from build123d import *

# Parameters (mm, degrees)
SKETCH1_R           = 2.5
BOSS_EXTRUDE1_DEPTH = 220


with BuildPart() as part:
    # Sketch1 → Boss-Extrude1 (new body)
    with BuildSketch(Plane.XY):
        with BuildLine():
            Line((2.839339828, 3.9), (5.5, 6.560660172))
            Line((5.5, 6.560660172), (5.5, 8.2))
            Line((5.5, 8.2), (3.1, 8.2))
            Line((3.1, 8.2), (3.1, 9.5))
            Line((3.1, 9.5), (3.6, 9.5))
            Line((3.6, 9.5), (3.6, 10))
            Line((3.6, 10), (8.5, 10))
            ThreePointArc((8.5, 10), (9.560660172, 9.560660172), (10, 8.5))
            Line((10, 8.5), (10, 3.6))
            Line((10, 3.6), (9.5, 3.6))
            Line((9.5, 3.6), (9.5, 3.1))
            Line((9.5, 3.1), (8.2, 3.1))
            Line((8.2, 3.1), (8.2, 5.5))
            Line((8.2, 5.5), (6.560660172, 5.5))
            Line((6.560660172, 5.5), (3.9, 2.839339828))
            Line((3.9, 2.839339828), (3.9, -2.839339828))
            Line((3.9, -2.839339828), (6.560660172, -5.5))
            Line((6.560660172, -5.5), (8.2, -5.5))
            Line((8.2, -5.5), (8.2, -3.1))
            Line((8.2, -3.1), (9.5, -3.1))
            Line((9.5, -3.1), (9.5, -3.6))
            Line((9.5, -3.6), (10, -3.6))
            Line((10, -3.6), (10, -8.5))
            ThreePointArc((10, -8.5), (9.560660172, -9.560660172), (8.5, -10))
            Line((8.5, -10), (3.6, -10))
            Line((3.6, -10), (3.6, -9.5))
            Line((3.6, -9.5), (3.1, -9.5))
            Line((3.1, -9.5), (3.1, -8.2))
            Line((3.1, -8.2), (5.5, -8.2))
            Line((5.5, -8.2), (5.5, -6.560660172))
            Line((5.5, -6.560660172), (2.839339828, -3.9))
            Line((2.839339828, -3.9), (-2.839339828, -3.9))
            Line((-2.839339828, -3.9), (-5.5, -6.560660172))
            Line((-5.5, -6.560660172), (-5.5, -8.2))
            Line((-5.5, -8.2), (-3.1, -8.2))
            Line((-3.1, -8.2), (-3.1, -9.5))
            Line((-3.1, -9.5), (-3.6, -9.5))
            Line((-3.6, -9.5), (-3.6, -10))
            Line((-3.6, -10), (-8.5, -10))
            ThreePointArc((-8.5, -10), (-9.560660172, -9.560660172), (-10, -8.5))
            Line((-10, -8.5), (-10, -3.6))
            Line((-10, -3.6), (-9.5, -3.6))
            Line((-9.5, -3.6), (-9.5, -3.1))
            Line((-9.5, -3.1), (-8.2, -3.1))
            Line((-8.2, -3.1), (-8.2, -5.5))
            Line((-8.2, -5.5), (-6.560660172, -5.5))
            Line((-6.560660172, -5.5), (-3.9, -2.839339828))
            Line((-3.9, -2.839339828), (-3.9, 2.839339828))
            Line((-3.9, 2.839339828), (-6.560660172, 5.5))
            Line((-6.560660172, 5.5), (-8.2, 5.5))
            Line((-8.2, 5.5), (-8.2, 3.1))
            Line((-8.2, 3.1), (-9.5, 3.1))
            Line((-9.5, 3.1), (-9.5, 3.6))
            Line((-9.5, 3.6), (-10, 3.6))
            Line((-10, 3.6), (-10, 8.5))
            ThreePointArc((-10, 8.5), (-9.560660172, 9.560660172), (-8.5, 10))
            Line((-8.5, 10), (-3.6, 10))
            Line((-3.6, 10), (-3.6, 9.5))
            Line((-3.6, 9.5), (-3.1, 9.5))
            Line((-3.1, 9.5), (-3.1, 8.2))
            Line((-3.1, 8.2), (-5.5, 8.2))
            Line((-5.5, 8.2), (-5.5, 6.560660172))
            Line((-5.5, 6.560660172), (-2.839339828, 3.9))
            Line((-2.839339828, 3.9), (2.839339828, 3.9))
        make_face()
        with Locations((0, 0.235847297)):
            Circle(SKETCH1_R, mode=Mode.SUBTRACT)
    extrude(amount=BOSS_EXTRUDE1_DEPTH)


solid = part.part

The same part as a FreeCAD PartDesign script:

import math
import FreeCAD as App
import Part
import Sketcher
Q = App.Units.Quantity

doc = App.newDocument("Part")
body = doc.addObject("PartDesign::Body", "Body")

# Sketch on XY plane
sketch1 = body.newObject("Sketcher::SketchObject", "Sketch")
sketch1.AttachmentSupport = (doc.getObject("XY_Plane"), [""])
sketch1.MapMode = "FlatFace"
sketch1.addGeometry(Part.LineSegment(App.Vector(5.5, 6.6, 0), App.Vector(2.8, 3.9, 0)), False)
sketch1.addGeometry(Part.LineSegment(App.Vector(2.8, 3.9, 0), App.Vector(-2.8, 3.9, 0)), False)
sketch1.addGeometry(Part.LineSegment(App.Vector(-2.8, 3.9, 0), App.Vector(-5.5, 6.6, 0)), False)
sketch1.addGeometry(Part.LineSegment(App.Vector(-5.5, 6.6, 0), App.Vector(-5.5, 8.2, 0)), False)
sketch1.addGeometry(Part.LineSegment(App.Vector(-5.5, 8.2, 0), App.Vector(-3.1, 8.2, 0)), False)
sketch1.addGeometry(Part.LineSegment(App.Vector(-3.1, 8.2, 0), App.Vector(-3.1, 9.5, 0)), False)
sketch1.addGeometry(Part.LineSegment(App.Vector(-3.1, 9.5, 0), App.Vector(-3.6, 9.5, 0)), False)
sketch1.addGeometry(Part.LineSegment(App.Vector(-3.6, 9.5, 0), App.Vector(-3.6, 10, 0)), False)
sketch1.addGeometry(Part.LineSegment(App.Vector(-3.6, 10, 0), App.Vector(-8.5, 10, 0)), False)
sketch1.addGeometry(Part.ArcOfCircle(Part.Circle(App.Vector(-8.5, 8.5, 0), App.Vector(0, 0, 1), 1.5), math.radians(90), math.radians(180)), False)
sketch1.addGeometry(Part.LineSegment(App.Vector(-10, 8.5, 0), App.Vector(-10, 3.6, 0)), False)
sketch1.addGeometry(Part.LineSegment(App.Vector(-10, 3.6, 0), App.Vector(-9.5, 3.6, 0)), False)
sketch1.addGeometry(Part.LineSegment(App.Vector(-9.5, 3.6, 0), App.Vector(-9.5, 3.1, 0)), False)
sketch1.addGeometry(Part.LineSegment(App.Vector(-9.5, 3.1, 0), App.Vector(-8.2, 3.1, 0)), False)
sketch1.addGeometry(Part.LineSegment(App.Vector(-8.2, 3.1, 0), App.Vector(-8.2, 5.5, 0)), False)
sketch1.addGeometry(Part.LineSegment(App.Vector(-8.2, 5.5, 0), App.Vector(-6.6, 5.5, 0)), False)
sketch1.addGeometry(Part.LineSegment(App.Vector(-6.6, 5.5, 0), App.Vector(-3.9, 2.8, 0)), False)
sketch1.addGeometry(Part.LineSegment(App.Vector(-3.9, 2.8, 0), App.Vector(-3.9, -2.8, 0)), False)
sketch1.addGeometry(Part.LineSegment(App.Vector(-3.9, -2.8, 0), App.Vector(-6.6, -5.5, 0)), False)
sketch1.addGeometry(Part.LineSegment(App.Vector(-6.6, -5.5, 0), App.Vector(-8.2, -5.5, 0)), False)
sketch1.addGeometry(Part.LineSegment(App.Vector(-8.2, -5.5, 0), App.Vector(-8.2, -3.1, 0)), False)
sketch1.addGeometry(Part.LineSegment(App.Vector(-8.2, -3.1, 0), App.Vector(-9.5, -3.1, 0)), False)
sketch1.addGeometry(Part.LineSegment(App.Vector(-9.5, -3.1, 0), App.Vector(-9.5, -3.6, 0)), False)
sketch1.addGeometry(Part.LineSegment(App.Vector(-9.5, -3.6, 0), App.Vector(-10, -3.6, 0)), False)
sketch1.addGeometry(Part.LineSegment(App.Vector(-10, -3.6, 0), App.Vector(-10, -8.5, 0)), False)
sketch1.addGeometry(Part.ArcOfCircle(Part.Circle(App.Vector(-8.5, -8.5, 0), App.Vector(0, 0, 1), 1.5), math.radians(180), math.radians(270)), False)
sketch1.addGeometry(Part.LineSegment(App.Vector(-8.5, -10, 0), App.Vector(-3.6, -10, 0)), False)
sketch1.addGeometry(Part.LineSegment(App.Vector(-3.6, -10, 0), App.Vector(-3.6, -9.5, 0)), False)
sketch1.addGeometry(Part.LineSegment(App.Vector(-3.6, -9.5, 0), App.Vector(-3.1, -9.5, 0)), False)
sketch1.addGeometry(Part.LineSegment(App.Vector(-3.1, -9.5, 0), App.Vector(-3.1, -8.2, 0)), False)
sketch1.addGeometry(Part.LineSegment(App.Vector(-3.1, -8.2, 0), App.Vector(-5.5, -8.2, 0)), False)
sketch1.addGeometry(Part.LineSegment(App.Vector(-5.5, -8.2, 0), App.Vector(-5.5, -6.6, 0)), False)
sketch1.addGeometry(Part.LineSegment(App.Vector(-5.5, -6.6, 0), App.Vector(-2.8, -3.9, 0)), False)
sketch1.addGeometry(Part.LineSegment(App.Vector(-2.8, -3.9, 0), App.Vector(2.8, -3.9, 0)), False)
sketch1.addGeometry(Part.LineSegment(App.Vector(2.8, -3.9, 0), App.Vector(5.5, -6.6, 0)), False)
sketch1.addGeometry(Part.LineSegment(App.Vector(5.5, -6.6, 0), App.Vector(5.5, -8.2, 0)), False)
sketch1.addGeometry(Part.LineSegment(App.Vector(5.5, -8.2, 0), App.Vector(3.1, -8.2, 0)), False)
sketch1.addGeometry(Part.LineSegment(App.Vector(3.1, -8.2, 0), App.Vector(3.1, -9.5, 0)), False)
sketch1.addGeometry(Part.LineSegment(App.Vector(3.1, -9.5, 0), App.Vector(3.6, -9.5, 0)), False)
sketch1.addGeometry(Part.LineSegment(App.Vector(3.6, -9.5, 0), App.Vector(3.6, -10, 0)), False)
sketch1.addGeometry(Part.LineSegment(App.Vector(3.6, -10, 0), App.Vector(8.5, -10, 0)), False)
sketch1.addGeometry(Part.ArcOfCircle(Part.Circle(App.Vector(8.5, -8.5, 0), App.Vector(0, 0, 1), 1.5), math.radians(-90), math.radians(0)), False)
sketch1.addGeometry(Part.LineSegment(App.Vector(10, -8.5, 0), App.Vector(10, -3.6, 0)), False)
sketch1.addGeometry(Part.LineSegment(App.Vector(10, -3.6, 0), App.Vector(9.5, -3.6, 0)), False)
sketch1.addGeometry(Part.LineSegment(App.Vector(9.5, -3.6, 0), App.Vector(9.5, -3.1, 0)), False)
sketch1.addGeometry(Part.LineSegment(App.Vector(9.5, -3.1, 0), App.Vector(8.2, -3.1, 0)), False)
sketch1.addGeometry(Part.LineSegment(App.Vector(8.2, -3.1, 0), App.Vector(8.2, -5.5, 0)), False)
sketch1.addGeometry(Part.LineSegment(App.Vector(8.2, -5.5, 0), App.Vector(6.6, -5.5, 0)), False)
sketch1.addGeometry(Part.LineSegment(App.Vector(6.6, -5.5, 0), App.Vector(3.9, -2.8, 0)), False)
sketch1.addGeometry(Part.LineSegment(App.Vector(3.9, -2.8, 0), App.Vector(3.9, 2.8, 0)), False)
sketch1.addGeometry(Part.LineSegment(App.Vector(3.9, 2.8, 0), App.Vector(6.6, 5.5, 0)), False)
sketch1.addGeometry(Part.LineSegment(App.Vector(6.6, 5.5, 0), App.Vector(8.2, 5.5, 0)), False)
sketch1.addGeometry(Part.LineSegment(App.Vector(8.2, 5.5, 0), App.Vector(8.2, 3.1, 0)), False)
sketch1.addGeometry(Part.LineSegment(App.Vector(8.2, 3.1, 0), App.Vector(9.5, 3.1, 0)), False)
sketch1.addGeometry(Part.LineSegment(App.Vector(9.5, 3.1, 0), App.Vector(9.5, 3.6, 0)), False)
sketch1.addGeometry(Part.LineSegment(App.Vector(9.5, 3.6, 0), App.Vector(10, 3.6, 0)), False)
sketch1.addGeometry(Part.LineSegment(App.Vector(10, 3.6, 0), App.Vector(10, 8.5, 0)), False)
sketch1.addGeometry(Part.ArcOfCircle(Part.Circle(App.Vector(8.5, 8.5, 0), App.Vector(0, 0, 1), 1.5), math.radians(0), math.radians(90)), False)
sketch1.addGeometry(Part.LineSegment(App.Vector(8.5, 10, 0), App.Vector(3.6, 10, 0)), False)
sketch1.addGeometry(Part.LineSegment(App.Vector(3.6, 10, 0), App.Vector(3.6, 9.5, 0)), False)
sketch1.addGeometry(Part.LineSegment(App.Vector(3.6, 9.5, 0), App.Vector(3.1, 9.5, 0)), False)
sketch1.addGeometry(Part.LineSegment(App.Vector(3.1, 9.5, 0), App.Vector(3.1, 8.2, 0)), False)
sketch1.addGeometry(Part.LineSegment(App.Vector(3.1, 8.2, 0), App.Vector(5.5, 8.2, 0)), False)
sketch1.addGeometry(Part.LineSegment(App.Vector(5.5, 8.2, 0), App.Vector(5.5, 6.6, 0)), False)
sketch1.addGeometry(Part.Circle(App.Vector(0, 0.2, 0), App.Vector(0, 0, 1), 2.5), False)
sketch1.addConstraint(Sketcher.Constraint("Coincident", 0, 2, 1, 1))
sketch1.addConstraint(Sketcher.Constraint("Coincident", 1, 2, 2, 1))
sketch1.addConstraint(Sketcher.Constraint("Coincident", 2, 2, 3, 1))
sketch1.addConstraint(Sketcher.Constraint("Coincident", 3, 2, 4, 1))
sketch1.addConstraint(Sketcher.Constraint("Coincident", 4, 2, 5, 1))
sketch1.addConstraint(Sketcher.Constraint("Coincident", 5, 2, 6, 1))
sketch1.addConstraint(Sketcher.Constraint("Coincident", 6, 2, 7, 1))
sketch1.addConstraint(Sketcher.Constraint("Coincident", 7, 2, 8, 1))
sketch1.addConstraint(Sketcher.Constraint("Tangent", 8, 2, 9, 1))
sketch1.addConstraint(Sketcher.Constraint("Tangent", 9, 2, 10, 1))
sketch1.addConstraint(Sketcher.Constraint("Coincident", 10, 2, 11, 1))
sketch1.addConstraint(Sketcher.Constraint("Coincident", 11, 2, 12, 1))
sketch1.addConstraint(Sketcher.Constraint("Coincident", 12, 2, 13, 1))
sketch1.addConstraint(Sketcher.Constraint("Coincident", 13, 2, 14, 1))
sketch1.addConstraint(Sketcher.Constraint("Coincident", 14, 2, 15, 1))
sketch1.addConstraint(Sketcher.Constraint("Coincident", 15, 2, 16, 1))
sketch1.addConstraint(Sketcher.Constraint("Coincident", 16, 2, 17, 1))
sketch1.addConstraint(Sketcher.Constraint("Coincident", 17, 2, 18, 1))
sketch1.addConstraint(Sketcher.Constraint("Coincident", 18, 2, 19, 1))
sketch1.addConstraint(Sketcher.Constraint("Coincident", 19, 2, 20, 1))
sketch1.addConstraint(Sketcher.Constraint("Coincident", 20, 2, 21, 1))
sketch1.addConstraint(Sketcher.Constraint("Coincident", 21, 2, 22, 1))
sketch1.addConstraint(Sketcher.Constraint("Coincident", 22, 2, 23, 1))
sketch1.addConstraint(Sketcher.Constraint("Coincident", 23, 2, 24, 1))
sketch1.addConstraint(Sketcher.Constraint("Tangent", 24, 2, 25, 1))
sketch1.addConstraint(Sketcher.Constraint("Tangent", 25, 2, 26, 1))
sketch1.addConstraint(Sketcher.Constraint("Coincident", 26, 2, 27, 1))
sketch1.addConstraint(Sketcher.Constraint("Coincident", 27, 2, 28, 1))
sketch1.addConstraint(Sketcher.Constraint("Coincident", 28, 2, 29, 1))
sketch1.addConstraint(Sketcher.Constraint("Coincident", 29, 2, 30, 1))
sketch1.addConstraint(Sketcher.Constraint("Coincident", 30, 2, 31, 1))
sketch1.addConstraint(Sketcher.Constraint("Coincident", 31, 2, 32, 1))
sketch1.addConstraint(Sketcher.Constraint("Coincident", 32, 2, 33, 1))
sketch1.addConstraint(Sketcher.Constraint("Coincident", 33, 2, 34, 1))
sketch1.addConstraint(Sketcher.Constraint("Coincident", 34, 2, 35, 1))
sketch1.addConstraint(Sketcher.Constraint("Coincident", 35, 2, 36, 1))
sketch1.addConstraint(Sketcher.Constraint("Coincident", 36, 2, 37, 1))
sketch1.addConstraint(Sketcher.Constraint("Coincident", 37, 2, 38, 1))
sketch1.addConstraint(Sketcher.Constraint("Coincident", 38, 2, 39, 1))
sketch1.addConstraint(Sketcher.Constraint("Coincident", 39, 2, 40, 1))
sketch1.addConstraint(Sketcher.Constraint("Tangent", 40, 2, 41, 1))
sketch1.addConstraint(Sketcher.Constraint("Tangent", 41, 2, 42, 1))
sketch1.addConstraint(Sketcher.Constraint("Coincident", 42, 2, 43, 1))
sketch1.addConstraint(Sketcher.Constraint("Coincident", 43, 2, 44, 1))
sketch1.addConstraint(Sketcher.Constraint("Coincident", 44, 2, 45, 1))
sketch1.addConstraint(Sketcher.Constraint("Coincident", 45, 2, 46, 1))
sketch1.addConstraint(Sketcher.Constraint("Coincident", 46, 2, 47, 1))
sketch1.addConstraint(Sketcher.Constraint("Coincident", 47, 2, 48, 1))
sketch1.addConstraint(Sketcher.Constraint("Coincident", 48, 2, 49, 1))
sketch1.addConstraint(Sketcher.Constraint("Coincident", 49, 2, 50, 1))
sketch1.addConstraint(Sketcher.Constraint("Coincident", 50, 2, 51, 1))
sketch1.addConstraint(Sketcher.Constraint("Coincident", 51, 2, 52, 1))
sketch1.addConstraint(Sketcher.Constraint("Coincident", 52, 2, 53, 1))
sketch1.addConstraint(Sketcher.Constraint("Coincident", 53, 2, 54, 1))
sketch1.addConstraint(Sketcher.Constraint("Coincident", 54, 2, 55, 1))
sketch1.addConstraint(Sketcher.Constraint("Coincident", 55, 2, 56, 1))
sketch1.addConstraint(Sketcher.Constraint("Tangent", 56, 2, 57, 1))
sketch1.addConstraint(Sketcher.Constraint("Tangent", 57, 2, 58, 1))
sketch1.addConstraint(Sketcher.Constraint("Coincident", 58, 2, 59, 1))
sketch1.addConstraint(Sketcher.Constraint("Coincident", 59, 2, 60, 1))
sketch1.addConstraint(Sketcher.Constraint("Coincident", 60, 2, 61, 1))
sketch1.addConstraint(Sketcher.Constraint("Coincident", 61, 2, 62, 1))
sketch1.addConstraint(Sketcher.Constraint("Coincident", 62, 2, 63, 1))
sketch1.addConstraint(Sketcher.Constraint("Coincident", 63, 2, 0, 1))
sketch1.addConstraint(Sketcher.Constraint("Horizontal", 1))
sketch1.addConstraint(Sketcher.Constraint("Vertical", 3))
sketch1.addConstraint(Sketcher.Constraint("Horizontal", 4))
sketch1.addConstraint(Sketcher.Constraint("Vertical", 5))
sketch1.addConstraint(Sketcher.Constraint("Horizontal", 6))
sketch1.addConstraint(Sketcher.Constraint("Vertical", 7))
sketch1.addConstraint(Sketcher.Constraint("Horizontal", 8))
sketch1.addConstraint(Sketcher.Constraint("Vertical", 10))
sketch1.addConstraint(Sketcher.Constraint("Horizontal", 11))
sketch1.addConstraint(Sketcher.Constraint("Vertical", 12))
sketch1.addConstraint(Sketcher.Constraint("Horizontal", 13))
sketch1.addConstraint(Sketcher.Constraint("Vertical", 14))
sketch1.addConstraint(Sketcher.Constraint("Horizontal", 15))
sketch1.addConstraint(Sketcher.Constraint("Vertical", 17))
sketch1.addConstraint(Sketcher.Constraint("Horizontal", 19))
sketch1.addConstraint(Sketcher.Constraint("Vertical", 20))
sketch1.addConstraint(Sketcher.Constraint("Horizontal", 21))
sketch1.addConstraint(Sketcher.Constraint("Vertical", 22))
sketch1.addConstraint(Sketcher.Constraint("Horizontal", 23))
sketch1.addConstraint(Sketcher.Constraint("Vertical", 24))
sketch1.addConstraint(Sketcher.Constraint("Horizontal", 26))
sketch1.addConstraint(Sketcher.Constraint("Vertical", 27))
sketch1.addConstraint(Sketcher.Constraint("Horizontal", 28))
sketch1.addConstraint(Sketcher.Constraint("Vertical", 29))
sketch1.addConstraint(Sketcher.Constraint("Horizontal", 30))
sketch1.addConstraint(Sketcher.Constraint("Vertical", 31))
sketch1.addConstraint(Sketcher.Constraint("Horizontal", 33))
sketch1.addConstraint(Sketcher.Constraint("Vertical", 35))
sketch1.addConstraint(Sketcher.Constraint("Horizontal", 36))
sketch1.addConstraint(Sketcher.Constraint("Vertical", 37))
sketch1.addConstraint(Sketcher.Constraint("Horizontal", 38))
sketch1.addConstraint(Sketcher.Constraint("Vertical", 39))
sketch1.addConstraint(Sketcher.Constraint("Horizontal", 40))
sketch1.addConstraint(Sketcher.Constraint("Vertical", 42))
sketch1.addConstraint(Sketcher.Constraint("Horizontal", 43))
sketch1.addConstraint(Sketcher.Constraint("Vertical", 44))
sketch1.addConstraint(Sketcher.Constraint("Horizontal", 45))
sketch1.addConstraint(Sketcher.Constraint("Vertical", 46))
sketch1.addConstraint(Sketcher.Constraint("Horizontal", 47))
sketch1.addConstraint(Sketcher.Constraint("Vertical", 49))
sketch1.addConstraint(Sketcher.Constraint("Horizontal", 51))
sketch1.addConstraint(Sketcher.Constraint("Vertical", 52))
sketch1.addConstraint(Sketcher.Constraint("Horizontal", 53))
sketch1.addConstraint(Sketcher.Constraint("Vertical", 54))
sketch1.addConstraint(Sketcher.Constraint("Horizontal", 55))
sketch1.addConstraint(Sketcher.Constraint("Vertical", 56))
sketch1.addConstraint(Sketcher.Constraint("Horizontal", 58))
sketch1.addConstraint(Sketcher.Constraint("Vertical", 59))
sketch1.addConstraint(Sketcher.Constraint("Horizontal", 60))
sketch1.addConstraint(Sketcher.Constraint("Vertical", 61))
sketch1.addConstraint(Sketcher.Constraint("Horizontal", 62))
sketch1.addConstraint(Sketcher.Constraint("Vertical", 63))
sketch1.addConstraint(Sketcher.Constraint("Equal", 9, 25))
sketch1.addConstraint(Sketcher.Constraint("Equal", 25, 41))
sketch1.addConstraint(Sketcher.Constraint("Equal", 41, 57))
sketch1.addConstraint(Sketcher.Constraint("Symmetric", 9, 3, 41, 3, -1, 1))
sketch1.addConstraint(Sketcher.Constraint("Symmetric", 25, 3, 57, 3, -1, 1))
sketch1.addConstraint(Sketcher.Constraint("Symmetric", 0, 2, 32, 2, -1, 1))
sketch1.addConstraint(Sketcher.Constraint("Symmetric", 2, 2, 34, 2, -1, 1))
sketch1.addConstraint(Sketcher.Constraint("Symmetric", 4, 2, 36, 2, -1, 1))
sketch1.addConstraint(Sketcher.Constraint("Symmetric", 6, 2, 38, 2, -1, 1))
sketch1.addConstraint(Sketcher.Constraint("Symmetric", 11, 2, 43, 2, -1, 1))
sketch1.addConstraint(Sketcher.Constraint("Symmetric", 13, 2, 45, 2, -1, 1))
sketch1.addConstraint(Sketcher.Constraint("Symmetric", 15, 2, 47, 2, -1, 1))
sketch1.addConstraint(Sketcher.Constraint("Symmetric", 16, 2, 48, 2, -1, 1))
sketch1.addConstraint(Sketcher.Constraint("Symmetric", 18, 2, 50, 2, -1, 1))
sketch1.addConstraint(Sketcher.Constraint("Symmetric", 20, 2, 52, 2, -1, 1))
sketch1.addConstraint(Sketcher.Constraint("Symmetric", 22, 2, 54, 2, -1, 1))
sketch1.addConstraint(Sketcher.Constraint("Symmetric", 27, 2, 59, 2, -1, 1))
sketch1.addConstraint(Sketcher.Constraint("Symmetric", 29, 2, 61, 2, -1, 1))
sketch1.addConstraint(Sketcher.Constraint("Symmetric", 31, 2, 63, 2, -1, 1))
sketch1.addConstraint(Sketcher.Constraint("Symmetric", 25, 3, 41, 3, -2))
sketch1.addConstraint(Sketcher.Constraint("Symmetric", 31, 2, 34, 2, -2))
sketch1.addConstraint(Sketcher.Constraint("Symmetric", 29, 2, 36, 2, -2))
sketch1.addConstraint(Sketcher.Constraint("Symmetric", 27, 2, 38, 2, -2))
sketch1.addConstraint(Sketcher.Constraint("Symmetric", 22, 2, 43, 2, -2))
sketch1.addConstraint(Sketcher.Constraint("Symmetric", 20, 2, 45, 2, -2))
sketch1.addConstraint(Sketcher.Constraint("Symmetric", 18, 2, 47, 2, -2))
sketch1.addConstraint(Sketcher.Constraint("PointOnObject", 64, 3, -2))
sketch1.addConstraint(Sketcher.Constraint("Perpendicular", 0, 2))
sketch1.addConstraint(Sketcher.Constraint("Parallel", 2, 16))
sketch1.addConstraint(Sketcher.Constraint("Perpendicular", 16, 18))
sketch1.addConstraint(Sketcher.Constraint("Perpendicular", 32, 34))
sketch1.addConstraint(Sketcher.Constraint("Perpendicular", 48, 50))
sketch1.addConstraint(Sketcher.Constraint("Horizontal", 17, 2, 48, 2))
sketch1.addConstraint(Sketcher.Constraint("Equal", 6, 11))
sketch1.addConstraint(Sketcher.Constraint("Equal", 51, 3))
sketch1.addConstraint(Sketcher.Constraint("Equal", 53, 5))
sketch1.addConstraint(Sketcher.Constraint("Equal", 60, 7))
sketch1.addConstraint(Sketcher.Constraint("Equal", 58, 10))
sketch1.addConstraint(Sketcher.Constraint("Equal", 7, 12))
sketch1.addConstraint(Sketcher.Constraint("Equal", 62, 14))
sketch1.addConstraint(Sketcher.Constraint("Equal", 33, 17))
sketch1.addConstraint(Sketcher.Constraint("Equal", 2, 16))
sketch1.addConstraint(Sketcher.Constraint("Diameter", 64, Q("5 mm")))
sketch1.addConstraint(Sketcher.Constraint("Radius", 9, Q("1.5 mm")))
sketch1.addConstraint(Sketcher.Constraint("DistanceX", 4, 1, 4, 2, Q("2.4 mm")))
sketch1.addConstraint(Sketcher.Constraint("DistanceX", 6, 2, 6, 1, Q("0.5 mm")))
sketch1.addConstraint(Sketcher.Constraint("DistanceX", 8, 2, 8, 1, Q("4.9 mm")))
sketch1.addConstraint(Sketcher.Constraint("DistanceX", 13, 1, 13, 2, Q("1.3 mm")))
sketch1.addConstraint(Sketcher.Constraint("DistanceY", -1, 1, 7, 2, Q("10 mm")))
sketch1.addConstraint(Sketcher.Constraint("DistanceY", -1, 1, 0, 2, Q("3.9 mm")))
sketch1.addConstraint(Sketcher.Constraint("DistanceX", 1, 2, 1, 1, Q("5.67868 mm")))
sketch1.addConstraint(Sketcher.Constraint("DistanceY", -1, 1, 64, 3, Q("0.235847 mm")))
pad1 = body.newObject("PartDesign::Pad", "Pad")
pad1.Profile = sketch1
pad1.Length = 220

doc.recompute()
